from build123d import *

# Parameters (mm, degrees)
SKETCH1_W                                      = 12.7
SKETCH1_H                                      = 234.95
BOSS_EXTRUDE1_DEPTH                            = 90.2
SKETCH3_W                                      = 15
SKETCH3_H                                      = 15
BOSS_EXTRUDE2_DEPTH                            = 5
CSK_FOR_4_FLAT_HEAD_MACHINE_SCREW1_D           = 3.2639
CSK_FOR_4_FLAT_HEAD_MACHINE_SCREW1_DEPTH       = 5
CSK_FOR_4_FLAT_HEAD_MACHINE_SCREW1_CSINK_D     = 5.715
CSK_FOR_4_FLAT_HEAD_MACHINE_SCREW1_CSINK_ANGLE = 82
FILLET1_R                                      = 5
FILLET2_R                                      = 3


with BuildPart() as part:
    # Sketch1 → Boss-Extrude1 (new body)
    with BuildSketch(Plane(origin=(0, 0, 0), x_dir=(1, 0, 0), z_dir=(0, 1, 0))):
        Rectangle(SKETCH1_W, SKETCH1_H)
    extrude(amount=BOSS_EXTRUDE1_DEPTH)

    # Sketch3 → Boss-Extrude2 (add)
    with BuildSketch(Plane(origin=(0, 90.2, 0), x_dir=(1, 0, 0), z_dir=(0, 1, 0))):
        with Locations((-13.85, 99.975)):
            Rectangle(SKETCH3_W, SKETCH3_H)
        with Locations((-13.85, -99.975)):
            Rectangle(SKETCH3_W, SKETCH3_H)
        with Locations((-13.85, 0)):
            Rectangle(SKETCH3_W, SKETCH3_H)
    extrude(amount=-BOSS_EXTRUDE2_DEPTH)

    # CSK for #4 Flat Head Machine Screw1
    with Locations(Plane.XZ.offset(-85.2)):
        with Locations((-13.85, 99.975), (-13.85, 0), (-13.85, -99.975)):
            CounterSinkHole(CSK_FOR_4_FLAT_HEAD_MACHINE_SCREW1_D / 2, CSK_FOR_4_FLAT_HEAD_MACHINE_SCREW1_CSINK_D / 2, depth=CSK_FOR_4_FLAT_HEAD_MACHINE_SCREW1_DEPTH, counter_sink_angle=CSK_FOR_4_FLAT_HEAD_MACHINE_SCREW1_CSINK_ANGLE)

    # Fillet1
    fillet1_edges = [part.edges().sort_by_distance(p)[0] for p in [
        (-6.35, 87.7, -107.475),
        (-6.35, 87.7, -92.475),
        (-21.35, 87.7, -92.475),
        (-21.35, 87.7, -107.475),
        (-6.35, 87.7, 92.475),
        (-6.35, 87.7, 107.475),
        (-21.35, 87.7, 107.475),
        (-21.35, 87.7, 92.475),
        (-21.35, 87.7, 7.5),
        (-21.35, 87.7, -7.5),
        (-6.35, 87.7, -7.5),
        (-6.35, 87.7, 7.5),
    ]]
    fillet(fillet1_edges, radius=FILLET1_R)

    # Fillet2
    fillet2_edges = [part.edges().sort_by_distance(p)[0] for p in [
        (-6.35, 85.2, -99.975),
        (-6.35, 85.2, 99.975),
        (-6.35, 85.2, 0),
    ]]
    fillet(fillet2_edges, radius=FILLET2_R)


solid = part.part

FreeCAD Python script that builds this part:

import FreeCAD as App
import Part
import Sketcher


def edges_at(feature, points):
    """Names of the edges that pass closest to the given points."""
    edges = feature.Shape.Edges
    near = lambda p: min(range(len(edges)), key=lambda i: edges[i].distToShape(Part.Vertex(*p))[0])
    return sorted({f"Edge{near(p) + 1}" for p in points})

doc = App.newDocument("Part")
body = doc.addObject("PartDesign::Body", "Body")

sketch1 = body.newObject("Sketcher::SketchObject", "Sketch")
sketch1.AttachmentSupport = (doc.getObject("XZ_Plane"), [""])
sketch1.MapMode = "FlatFace"
sketch1.addGeometry([
    Part.LineSegment(App.Vector(-6.35, -117.475, 0), App.Vector(-6.35, 117.475, 0)),
    Part.LineSegment(App.Vector(-6.35, 117.475, 0), App.Vector(6.35, 117.475, 0)),
    Part.LineSegment(App.Vector(6.35, 117.475, 0), App.Vector(6.35, -117.475, 0)),
    Part.LineSegment(App.Vector(6.35, -117.475, 0), App.Vector(-6.35, -117.475, 0)),
], False)
sketch1.addConstraint([
    Sketcher.Constraint("Coincident", 0, 2, 1, 1),
    Sketcher.Constraint("Coincident", 1, 2, 2, 1),
    Sketcher.Constraint("Coincident", 2, 2, 3, 1),
    Sketcher.Constraint("Coincident", 3, 2, 0, 1),
    Sketcher.Constraint("Vertical", 0),
    Sketcher.Constraint("Horizontal", 1),
    Sketcher.Constraint("Vertical", 2),
    Sketcher.Constraint("Horizontal", 3),
    Sketcher.Constraint("Symmetric", 0, 2, 2, 2, -1, 1),
    Sketcher.Constraint("DistanceX", 1, 1, 1, 2, 12.7),
    Sketcher.Constraint("DistanceY", 0, 1, 0, 2, 234.95),
])
pad1 = body.newObject("PartDesign::Pad", "Pad")
pad1.Profile = sketch1
pad1.Length = 90.2
pad1.Reversed = True

sketch2 = body.newObject("Sketcher::SketchObject", "Sketch001")
sketch2.AttachmentSupport = (doc.getObject("XZ_Plane"), [""])
sketch2.MapMode = "FlatFace"
sketch2.AttachmentOffset = App.Placement(App.Vector(0, 0, -90.2), App.Rotation())
sketch2.addGeometry([
    Part.LineSegment(App.Vector(-21.35, -107.475, 0), App.Vector(-21.35, -92.475, 0)),
    Part.LineSegment(App.Vector(-21.35, -92.475, 0), App.Vector(-6.35, -92.475, 0)),
    Part.LineSegment(App.Vector(-6.35, -92.475, 0), App.Vector(-6.35, -107.475, 0)),
    Part.LineSegment(App.Vector(-6.35, -107.475, 0), App.Vector(-21.35, -107.475, 0)),
    Part.LineSegment(App.Vector(-21.35, 92.475, 0), App.Vector(-21.35, 107.475, 0)),
    Part.LineSegment(App.Vector(-21.35, 107.475, 0), App.Vector(-6.35, 107.475, 0)),
    Part.LineSegment(App.Vector(-6.35, 107.475, 0), App.Vector(-6.35, 92.475, 0)),
    Part.LineSegment(App.Vector(-6.35, 92.475, 0), App.Vector(-21.35, 92.475, 0)),
    Part.LineSegment(App.Vector(-21.35, -7.5, 0), App.Vector(-21.35, 7.5, 0)),
    Part.LineSegment(App.Vector(-21.35, 7.5, 0), App.Vector(-6.35, 7.5, 0)),
    Part.LineSegment(App.Vector(-6.35, 7.5, 0), App.Vector(-6.35, -7.5, 0)),
    Part.LineSegment(App.Vector(-6.35, -7.5, 0), App.Vector(-21.35, -7.5, 0)),
], False)
sketch2.addConstraint([
    Sketcher.Constraint("Coincident", 0, 2, 1, 1),
    Sketcher.Constraint("Coincident", 1, 2, 2, 1),
    Sketcher.Constraint("Coincident", 2, 2, 3, 1),
    Sketcher.Constraint("Coincident", 3, 2, 0, 1),
    Sketcher.Constraint("Coincident", 4, 2, 5, 1),
    Sketcher.Constraint("Coincident", 5, 2, 6, 1),
    Sketcher.Constraint("Coincident", 6, 2, 7, 1),
    Sketcher.Constraint("Coincident", 7, 2, 4, 1),
    Sketcher.Constraint("Coincident", 8, 2, 9, 1),
    Sketcher.Constraint("Coincident", 9, 2, 10, 1),
    Sketcher.Constraint("Coincident", 10, 2, 11, 1),
    Sketcher.Constraint("Coincident", 11, 2, 8, 1),
    Sketcher.Constraint("Vertical", 0),
    Sketcher.Constraint("Horizontal", 1),
    Sketcher.Constraint("Vertical", 2),
    Sketcher.Constraint("Horizontal", 3),
    Sketcher.Constraint("Vertical", 4),
    Sketcher.Constraint("Horizontal", 5),
    Sketcher.Constraint("Vertical", 6),
    Sketcher.Constraint("Horizontal", 7),
    Sketcher.Constraint("Vertical", 8),
    Sketcher.Constraint("Horizontal", 9),
    Sketcher.Constraint("Vertical", 10),
    Sketcher.Constraint("Horizontal", 11),
    Sketcher.Constraint("Symmetric", 3, 2, 4, 2, -1),
    Sketcher.Constraint("Symmetric", 1, 2, 6, 2, -1),
    Sketcher.Constraint("Vertical", 7, 2, 8, 2),
    Sketcher.Constraint("Vertical", 6, 2, 9, 2),
    Sketcher.Constraint("Equal", 11, 0),
    Sketcher.Constraint("Equal", 6, 8),
    Sketcher.Constraint("DistanceX", 1, 1, 1, 2, 15.0),
    Sketcher.Constraint("DistanceY", -1, 1, 8, 2, 7.5),
    Sketcher.Constraint("DistanceX", 0, 2, -1, 1, 21.35),
    Sketcher.Constraint("DistanceY", 0, 2, 4, 2, 199.95),
])
pad2 = body.newObject("PartDesign::Pad", "Pad001")
pad2.Profile = sketch2
pad2.Length = 5

sketch3 = body.newObject("Sketcher::SketchObject", "Sketch002")
sketch3.AttachmentSupport = (doc.getObject("XZ_Plane"), [""])
sketch3.MapMode = "FlatFace"
sketch3.AttachmentOffset = App.Placement(App.Vector(0, 0, -85.2), App.Rotation())
sketch3.addGeometry([
    Part.Circle(App.Vector(-13.85, 99.975, 0), App.Vector(0, 0, 1), 1.63195),
    Part.Circle(App.Vector(-13.85, 0, 0), App.Vector(0, 0, 1), 1.63195),
    Part.Circle(App.Vector(-13.85, -99.975, 0), App.Vector(0, 0, 1), 1.63195),
], False)
sketch3.addConstraint([
    Sketcher.Constraint("Equal", 0, 1),
    Sketcher.Constraint("Equal", 1, 2),
    Sketcher.Constraint("Symmetric", 0, 3, 2, 3, -1),
    Sketcher.Constraint("PointOnObject", 1, 3, -1),
    Sketcher.Constraint("Vertical", 0, 3, 1, 3),
    Sketcher.Constraint("Diameter", 0, 3.2639),
    Sketcher.Constraint("DistanceX", 0, 3, -1, 1, 13.85),
    Sketcher.Constraint("DistanceY", 2, 3, 0, 3, 199.95),
])
doc.recompute()
hole = body.newObject("PartDesign::Hole", "Hole")
hole.Profile = sketch3
hole.ThreadType = "None"
hole.Diameter = 3.2639
hole.DepthType = "Dimension"
hole.Depth = 5
hole.DrillPoint = "Flat"
hole.HoleCutType = "Countersink"
hole.HoleCutDiameter = 5.715
hole.HoleCutCountersinkAngle = 82
doc.recompute()

fillet = body.newObject("PartDesign::Fillet", "Fillet")
fillet.Base = (hole, edges_at(hole, [
    (-6.35, 87.7, -107.475),
    (-6.35, 87.7, -92.475),
    (-21.35, 87.7, -92.475),
    (-21.35, 87.7, -107.475),
    (-6.35, 87.7, 92.475),
    (-6.35, 87.7, 107.475),
    (-21.35, 87.7, 107.475),
    (-21.35, 87.7, 92.475),
    (-21.35, 87.7, 7.5),
    (-21.35, 87.7, -7.5),
    (-6.35, 87.7, -7.5),
    (-6.35, 87.7, 7.5),
]))
fillet.Radius = 5
doc.recompute()

fillet2 = body.newObject("PartDesign::Fillet", "Fillet001")
fillet2.Base = (fillet, edges_at(fillet, [(-6.35, 85.2, -99.975), (-6.35, 85.2, 99.975), (-6.35, 85.2, 0)]))
fillet2.Radius = 3

doc.recompute()
